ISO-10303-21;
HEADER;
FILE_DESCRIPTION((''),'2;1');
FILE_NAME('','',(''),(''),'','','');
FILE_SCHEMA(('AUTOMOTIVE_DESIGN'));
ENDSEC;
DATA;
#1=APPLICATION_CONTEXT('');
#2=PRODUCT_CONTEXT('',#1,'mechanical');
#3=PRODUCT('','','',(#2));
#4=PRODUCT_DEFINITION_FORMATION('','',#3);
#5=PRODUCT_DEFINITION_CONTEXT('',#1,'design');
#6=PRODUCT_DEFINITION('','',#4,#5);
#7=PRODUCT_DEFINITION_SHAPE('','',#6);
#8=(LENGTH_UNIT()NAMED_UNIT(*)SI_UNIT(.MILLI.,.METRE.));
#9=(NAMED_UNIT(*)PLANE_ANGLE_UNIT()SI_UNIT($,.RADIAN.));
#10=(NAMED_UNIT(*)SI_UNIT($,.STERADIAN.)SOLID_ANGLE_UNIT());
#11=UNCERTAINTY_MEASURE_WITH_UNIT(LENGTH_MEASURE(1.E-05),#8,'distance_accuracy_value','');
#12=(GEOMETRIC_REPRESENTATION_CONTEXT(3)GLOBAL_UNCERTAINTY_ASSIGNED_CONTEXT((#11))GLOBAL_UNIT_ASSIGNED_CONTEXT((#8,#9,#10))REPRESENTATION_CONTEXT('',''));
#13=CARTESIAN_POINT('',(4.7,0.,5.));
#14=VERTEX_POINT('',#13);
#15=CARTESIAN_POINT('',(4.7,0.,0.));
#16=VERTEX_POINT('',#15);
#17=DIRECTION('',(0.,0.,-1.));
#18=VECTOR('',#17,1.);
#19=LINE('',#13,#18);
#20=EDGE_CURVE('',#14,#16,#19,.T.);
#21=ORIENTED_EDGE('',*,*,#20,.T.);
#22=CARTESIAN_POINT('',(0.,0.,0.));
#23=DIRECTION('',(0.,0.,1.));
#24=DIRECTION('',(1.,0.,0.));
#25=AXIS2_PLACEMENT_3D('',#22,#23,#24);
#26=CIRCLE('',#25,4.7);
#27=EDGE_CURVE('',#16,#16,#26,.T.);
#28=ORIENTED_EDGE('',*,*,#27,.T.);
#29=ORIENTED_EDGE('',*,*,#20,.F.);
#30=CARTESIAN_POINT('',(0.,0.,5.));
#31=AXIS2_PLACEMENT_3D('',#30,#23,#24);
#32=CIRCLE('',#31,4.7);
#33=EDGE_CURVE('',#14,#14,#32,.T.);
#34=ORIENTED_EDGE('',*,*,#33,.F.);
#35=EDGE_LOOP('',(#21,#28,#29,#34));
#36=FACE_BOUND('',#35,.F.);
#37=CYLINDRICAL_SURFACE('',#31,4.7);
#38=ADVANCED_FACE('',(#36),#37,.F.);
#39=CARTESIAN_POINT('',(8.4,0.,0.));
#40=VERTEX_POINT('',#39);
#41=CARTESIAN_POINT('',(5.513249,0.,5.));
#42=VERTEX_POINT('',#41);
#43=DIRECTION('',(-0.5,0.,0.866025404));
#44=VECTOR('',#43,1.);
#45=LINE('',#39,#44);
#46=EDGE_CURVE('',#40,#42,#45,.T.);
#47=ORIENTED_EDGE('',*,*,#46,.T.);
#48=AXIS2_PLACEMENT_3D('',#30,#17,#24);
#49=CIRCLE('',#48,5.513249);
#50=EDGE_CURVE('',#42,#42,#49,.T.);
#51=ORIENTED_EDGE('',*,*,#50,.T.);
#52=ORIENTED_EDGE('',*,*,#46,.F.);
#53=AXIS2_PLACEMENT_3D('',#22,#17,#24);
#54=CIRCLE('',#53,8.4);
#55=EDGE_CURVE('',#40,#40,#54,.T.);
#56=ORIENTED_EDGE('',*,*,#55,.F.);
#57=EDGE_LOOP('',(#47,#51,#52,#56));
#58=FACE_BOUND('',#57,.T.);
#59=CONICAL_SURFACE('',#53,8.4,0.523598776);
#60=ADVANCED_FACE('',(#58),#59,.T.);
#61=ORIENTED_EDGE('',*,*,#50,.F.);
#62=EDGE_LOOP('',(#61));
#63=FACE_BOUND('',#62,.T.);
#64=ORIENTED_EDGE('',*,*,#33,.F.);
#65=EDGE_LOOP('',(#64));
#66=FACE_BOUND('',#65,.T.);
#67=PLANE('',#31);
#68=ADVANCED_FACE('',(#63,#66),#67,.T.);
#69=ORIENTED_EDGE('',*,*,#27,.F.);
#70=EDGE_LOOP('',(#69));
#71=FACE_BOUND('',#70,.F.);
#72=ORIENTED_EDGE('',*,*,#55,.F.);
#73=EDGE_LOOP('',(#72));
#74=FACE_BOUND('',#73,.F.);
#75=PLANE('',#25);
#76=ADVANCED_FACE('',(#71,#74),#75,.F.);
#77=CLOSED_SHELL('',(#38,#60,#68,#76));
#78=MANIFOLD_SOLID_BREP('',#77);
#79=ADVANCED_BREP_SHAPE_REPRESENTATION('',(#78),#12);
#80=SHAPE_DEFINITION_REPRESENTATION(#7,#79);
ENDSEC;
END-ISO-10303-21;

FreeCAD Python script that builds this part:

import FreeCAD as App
import Part
import Sketcher
Q = App.Units.Quantity

doc = App.newDocument("Part")
body = doc.addObject("PartDesign::Body", "Body")

sketch1 = doc.addObject("Sketcher::SketchObject", "Sketch")
body.addObject(sketch1)
sketch1.AttachmentSupport = (doc.XY_Plane, [""])
sketch1.MapMode = "FlatFace"
sketch1.addGeometry(Part.Circle(App.Vector(0, 0, 0), App.Vector(0, 0, 1), 8), False)
sketch1.addConstraint(Sketcher.Constraint("Coincident", 0, 3, -1, 1))
sketch1.addConstraint(Sketcher.Constraint("Diameter", 0, Q("16.8 mm")))
pad1 = doc.addObject("PartDesign::Pad", "Pad")
body.addObject(pad1)
pad1.Profile = sketch1
pad1.Length = 5
pad1.TaperAngle = -30

sketch2 = doc.addObject("Sketcher::SketchObject", "Sketch001")
body.addObject(sketch2)
sketch2.AttachmentSupport = (doc.XY_Plane, [""])
sketch2.MapMode = "FlatFace"
sketch2.AttachmentOffset = App.Placement(App.Vector(0, 0, 5), App.Rotation())
sketch2.addGeometry(Part.Circle(App.Vector(0, 0, 0), App.Vector(0, 0, 1), 4.7), False)
sketch2.addConstraint(Sketcher.Constraint("Coincident", 0, 3, -1, 1))
sketch2.addConstraint(Sketcher.Constraint("Diameter", 0, Q("9.4 mm")))
pocket1 = doc.addObject("PartDesign::Pocket", "Pocket")
body.addObject(pocket1)
pocket1.Profile = sketch2
pocket1.Length = 5

doc.recompute()
